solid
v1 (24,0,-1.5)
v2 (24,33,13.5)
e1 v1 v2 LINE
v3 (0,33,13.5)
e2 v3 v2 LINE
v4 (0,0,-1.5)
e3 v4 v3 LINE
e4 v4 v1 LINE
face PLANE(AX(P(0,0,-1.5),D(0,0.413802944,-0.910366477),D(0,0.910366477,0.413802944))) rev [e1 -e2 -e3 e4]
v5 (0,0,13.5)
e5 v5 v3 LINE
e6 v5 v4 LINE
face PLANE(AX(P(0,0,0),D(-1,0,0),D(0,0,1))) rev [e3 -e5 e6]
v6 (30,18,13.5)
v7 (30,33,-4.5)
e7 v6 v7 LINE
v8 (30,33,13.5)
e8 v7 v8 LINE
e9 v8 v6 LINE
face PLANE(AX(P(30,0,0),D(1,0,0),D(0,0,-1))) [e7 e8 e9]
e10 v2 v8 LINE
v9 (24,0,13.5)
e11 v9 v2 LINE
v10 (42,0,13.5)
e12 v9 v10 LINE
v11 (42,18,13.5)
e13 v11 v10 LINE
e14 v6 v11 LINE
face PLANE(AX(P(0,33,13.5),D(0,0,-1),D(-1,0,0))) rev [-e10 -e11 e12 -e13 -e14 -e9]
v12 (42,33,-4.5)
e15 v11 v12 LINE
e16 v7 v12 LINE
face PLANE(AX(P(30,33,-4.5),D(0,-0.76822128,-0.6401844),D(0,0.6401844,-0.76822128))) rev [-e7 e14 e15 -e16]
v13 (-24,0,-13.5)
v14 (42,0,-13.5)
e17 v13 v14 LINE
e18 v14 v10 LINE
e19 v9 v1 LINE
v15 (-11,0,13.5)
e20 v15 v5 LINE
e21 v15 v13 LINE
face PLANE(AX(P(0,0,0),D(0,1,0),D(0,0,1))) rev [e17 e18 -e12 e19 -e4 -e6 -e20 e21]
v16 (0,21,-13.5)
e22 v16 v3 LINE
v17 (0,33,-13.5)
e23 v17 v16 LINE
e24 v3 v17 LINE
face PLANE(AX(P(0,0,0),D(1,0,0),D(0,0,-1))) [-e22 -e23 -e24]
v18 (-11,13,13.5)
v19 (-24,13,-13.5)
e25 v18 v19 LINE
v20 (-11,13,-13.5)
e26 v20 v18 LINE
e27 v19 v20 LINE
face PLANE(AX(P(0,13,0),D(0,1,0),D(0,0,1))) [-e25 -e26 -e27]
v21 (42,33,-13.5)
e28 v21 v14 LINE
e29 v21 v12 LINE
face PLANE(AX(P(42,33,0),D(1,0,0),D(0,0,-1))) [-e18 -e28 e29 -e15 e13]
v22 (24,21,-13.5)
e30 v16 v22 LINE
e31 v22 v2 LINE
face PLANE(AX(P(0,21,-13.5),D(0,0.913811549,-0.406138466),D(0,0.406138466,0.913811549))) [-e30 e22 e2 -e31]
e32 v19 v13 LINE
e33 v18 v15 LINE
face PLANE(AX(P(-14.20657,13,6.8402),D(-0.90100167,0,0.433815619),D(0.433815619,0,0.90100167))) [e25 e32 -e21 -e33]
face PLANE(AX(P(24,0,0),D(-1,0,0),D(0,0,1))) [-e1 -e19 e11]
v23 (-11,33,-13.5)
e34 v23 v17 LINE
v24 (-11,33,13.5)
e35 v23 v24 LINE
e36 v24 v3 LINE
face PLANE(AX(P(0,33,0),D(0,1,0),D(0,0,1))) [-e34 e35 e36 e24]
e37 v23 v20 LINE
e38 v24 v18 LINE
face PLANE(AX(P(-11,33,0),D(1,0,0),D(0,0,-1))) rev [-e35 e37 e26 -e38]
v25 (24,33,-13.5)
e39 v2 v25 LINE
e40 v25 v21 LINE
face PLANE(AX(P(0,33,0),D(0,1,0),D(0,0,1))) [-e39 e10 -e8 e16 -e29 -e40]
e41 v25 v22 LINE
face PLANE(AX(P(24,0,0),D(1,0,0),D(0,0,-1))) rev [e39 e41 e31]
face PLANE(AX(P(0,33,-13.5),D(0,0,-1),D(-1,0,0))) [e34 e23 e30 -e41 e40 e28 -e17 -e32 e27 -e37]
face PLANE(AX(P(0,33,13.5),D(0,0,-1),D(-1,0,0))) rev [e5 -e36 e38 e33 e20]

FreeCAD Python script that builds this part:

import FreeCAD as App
import Part
import Sketcher
Q = App.Units.Quantity

doc = App.newDocument("Part")
body = doc.addObject("PartDesign::Body", "Body")

# Sketch on XZ plane
sketch1 = body.newObject("Sketcher::SketchObject", "Sketch")
sketch1.AttachmentSupport = (doc.getObject("XZ_Plane"), [""])
sketch1.MapMode = "FlatFace"
sketch1.addGeometry(Part.LineSegment(App.Vector(-11, -14, 0), App.Vector(-11, 14, 0)), False)
sketch1.addGeometry(Part.LineSegment(App.Vector(-11, 14, 0), App.Vector(0, 14, 0)), False)
sketch1.addGeometry(Part.LineSegment(App.Vector(0, 14, 0), App.Vector(0, -14, 0)), False)
sketch1.addGeometry(Part.LineSegment(App.Vector(0, -14, 0), App.Vector(-11, -14, 0)), False)
sketch1.addConstraint(Sketcher.Constraint("Coincident", 0, 2, 1, 1))
sketch1.addConstraint(Sketcher.Constraint("Coincident", 1, 2, 2, 1))
sketch1.addConstraint(Sketcher.Constraint("Coincident", 2, 2, 3, 1))
sketch1.addConstraint(Sketcher.Constraint("Coincident", 3, 2, 0, 1))
sketch1.addConstraint(Sketcher.Constraint("Vertical", 0))
sketch1.addConstraint(Sketcher.Constraint("Horizontal", 1))
sketch1.addConstraint(Sketcher.Constraint("Vertical", 2))
sketch1.addConstraint(Sketcher.Constraint("Horizontal", 3))
sketch1.addConstraint(Sketcher.Constraint("Symmetric", 1, 2, 2, 2, -1, 1))
sketch1.addConstraint(Sketcher.Constraint("DistanceX", 1, 1, 1, 2, Q("11 mm")))
sketch1.addConstraint(Sketcher.Constraint("DistanceY", 0, 1, 0, 2, Q("27 mm")))
pad1 = body.newObject("PartDesign::Pad", "Pad")
pad1.Profile = sketch1
pad1.Length = 33
pad1.Reversed = True

# Sketch on XZ plane
sketch2 = body.newObject("Sketcher::SketchObject", "Sketch001")
sketch2.AttachmentSupport = (doc.getObject("XZ_Plane"), [""])
sketch2.MapMode = "FlatFace"
sketch2.addGeometry(Part.LineSegment(App.Vector(-11, -14, 0), App.Vector(-24, -14, 0)), False)
sketch2.addGeometry(Part.LineSegment(App.Vector(-24, -14, 0), App.Vector(-11, 14, 0)), False)
sketch2.addGeometry(Part.LineSegment(App.Vector(-11, 14, 0), App.Vector(-11, -14, 0)), False)
sketch2.addConstraint(Sketcher.Constraint("Coincident", 0, 2, 1, 1))
sketch2.addConstraint(Sketcher.Constraint("Coincident", 1, 2, 2, 1))
sketch2.addConstraint(Sketcher.Constraint("Coincident", 2, 2, 0, 1))
sketch2.addConstraint(Sketcher.Constraint("Horizontal", 0))
sketch2.addConstraint(Sketcher.Constraint("Vertical", 2))
sketch2.addConstraint(Sketcher.Constraint("DistanceX", 0, 2, 0, 1, Q("13 mm")))
sketch2.addConstraint(Sketcher.Constraint("DistanceY", 2, 2, 2, 1, Q("27 mm")))
sketch2.addConstraint(Sketcher.Constraint("DistanceX", 0, 2, -1, 1, Q("24 mm")))
sketch2.addConstraint(Sketcher.Constraint("DistanceY", 0, 2, -1, 1, Q("13.5 mm")))
pad2 = body.newObject("PartDesign::Pad", "Pad001")
pad2.Profile = sketch2
pad2.Length = 13
pad2.Reversed = True
body2 = doc.addObject("PartDesign::Body", "Body001")

# Sketch on XZ plane
sketch3 = body2.newObject("Sketcher::SketchObject", "Sketch002")
sketch3.AttachmentSupport = (doc.getObject("XZ_Plane001"), [""])
sketch3.MapMode = "FlatFace"
sketch3.addGeometry(Part.LineSegment(App.Vector(24, -14, 0), App.Vector(24, 14, 0)), False)
sketch3.addGeometry(Part.LineSegment(App.Vector(24, 14, 0), App.Vector(42, 14, 0)), False)
sketch3.addGeometry(Part.LineSegment(App.Vector(42, 14, 0), App.Vector(42, -14, 0)), False)
sketch3.addGeometry(Part.LineSegment(App.Vector(42, -14, 0), App.Vector(24, -14, 0)), False)
sketch3.addConstraint(Sketcher.Constraint("Coincident", 0, 2, 1, 1))
sketch3.addConstraint(Sketcher.Constraint("Coincident", 1, 2, 2, 1))
sketch3.addConstraint(Sketcher.Constraint("Coincident", 2, 2, 3, 1))
sketch3.addConstraint(Sketcher.Constraint("Coincident", 3, 2, 0, 1))
sketch3.addConstraint(Sketcher.Constraint("Vertical", 0))
sketch3.addConstraint(Sketcher.Constraint("Horizontal", 1))
sketch3.addConstraint(Sketcher.Constraint("Vertical", 2))
sketch3.addConstraint(Sketcher.Constraint("Horizontal", 3))
sketch3.addConstraint(Sketcher.Constraint("DistanceX", 1, 1, 1, 2, Q("18 mm")))
sketch3.addConstraint(Sketcher.Constraint("DistanceY", 0, 1, 0, 2, Q("27 mm")))
sketch3.addConstraint(Sketcher.Constraint("DistanceX", -1, 1, 0, 2, Q("24 mm")))
sketch3.addConstraint(Sketcher.Constraint("DistanceY", -1, 1, 0, 2, Q("13.5 mm")))
pad3 = body2.newObject("PartDesign::Pad", "Pad002")
pad3.Profile = sketch3
pad3.Length = 33
pad3.Reversed = True
body.AllowCompound = True
doc.recompute()

boolean = body.newObject("PartDesign::Boolean", "Boolean")
boolean.Type = "Fuse"
boolean.addObjects([body2])

# Sketch on XZ plane
sketch4 = body.newObject("Sketcher::SketchObject", "Sketch003")
sketch4.AttachmentSupport = (doc.getObject("XZ_Plane"), [""])
sketch4.MapMode = "FlatFace"
sketch4.addGeometry(Part.LineSegment(App.Vector(0, -14, 0), App.Vector(0, 14, 0)), False)
sketch4.addGeometry(Part.LineSegment(App.Vector(0, 14, 0), App.Vector(24, 14, 0)), False)
sketch4.addGeometry(Part.LineSegment(App.Vector(24, 14, 0), App.Vector(24, -14, 0)), False)
sketch4.addGeometry(Part.LineSegment(App.Vector(24, -14, 0), App.Vector(0, -14, 0)), False)
sketch4.addConstraint(Sketcher.Constraint("Coincident", 0, 2, 1, 1))
sketch4.addConstraint(Sketcher.Constraint("Coincident", 1, 2, 2, 1))
sketch4.addConstraint(Sketcher.Constraint("Coincident", 2, 2, 3, 1))
sketch4.addConstraint(Sketcher.Constraint("Coincident", 3, 2, 0, 1))
sketch4.addConstraint(Sketcher.Constraint("Vertical", 0))
sketch4.addConstraint(Sketcher.Constraint("Horizontal", 1))
sketch4.addConstraint(Sketcher.Constraint("Vertical", 2))
sketch4.addConstraint(Sketcher.Constraint("Horizontal", 3))
sketch4.addConstraint(Sketcher.Constraint("Symmetric", 0, 2, 3, 2, -1, 1))
sketch4.addConstraint(Sketcher.Constraint("DistanceX", 1, 1, 1, 2, Q("24 mm")))
sketch4.addConstraint(Sketcher.Constraint("DistanceY", 0, 1, 0, 2, Q("27 mm")))
pad4 = body.newObject("PartDesign::Pad", "Pad003")
pad4.Profile = sketch4
pad4.Length = 33
pad4.Reversed = True

# Sketch on YZ plane
sketch5 = body.newObject("Sketcher::SketchObject", "Sketch004")
sketch5.AttachmentSupport = (doc.getObject("YZ_Plane"), [""])
sketch5.MapMode = "FlatFace"
sketch5.AttachmentOffset = App.Placement(App.Vector(0, 0, 24), App.Rotation())
sketch5.addGeometry(Part.LineSegment(App.Vector(33, 14, 0), App.Vector(33, -14, 0)), False)
sketch5.addGeometry(Part.LineSegment(App.Vector(33, -14, 0), App.Vector(21, -14, 0)), False)
sketch5.addGeometry(Part.LineSegment(App.Vector(21, -14, 0), App.Vector(33, 14, 0)), False)
sketch5.addGeometry(Part.LineSegment(App.Vector(0, 14, 0), App.Vector(33, 14, 0)), False)
sketch5.addGeometry(Part.LineSegment(App.Vector(33, 14, 0), App.Vector(0, -2, 0)), False)
sketch5.addGeometry(Part.LineSegment(App.Vector(0, -2, 0), App.Vector(0, 14, 0)), False)
sketch5.addConstraint(Sketcher.Constraint("Coincident", 0, 2, 1, 1))
sketch5.addConstraint(Sketcher.Constraint("Coincident", 1, 2, 2, 1))
sketch5.addConstraint(Sketcher.Constraint("Coincident", 2, 2, 0, 1))
sketch5.addConstraint(Sketcher.Constraint("Coincident", 3, 2, 4, 1))
sketch5.addConstraint(Sketcher.Constraint("Coincident", 4, 2, 5, 1))
sketch5.addConstraint(Sketcher.Constraint("Coincident", 5, 2, 3, 1))
sketch5.addConstraint(Sketcher.Constraint("Vertical", 0))
sketch5.addConstraint(Sketcher.Constraint("Horizontal", 1))
sketch5.addConstraint(Sketcher.Constraint("Horizontal", 3))
sketch5.addConstraint(Sketcher.Constraint("Vertical", 5))
sketch5.addConstraint(Sketcher.Constraint("Coincident", 3, 2, 2, 2))
sketch5.addConstraint(Sketcher.Constraint("PointOnObject", 4, 2, -2))
sketch5.addConstraint(Sketcher.Constraint("DistanceX", 1, 2, 1, 1, Q("12 mm")))
sketch5.addConstraint(Sketcher.Constraint("DistanceX", 3, 1, 3, 2, Q("33 mm")))
sketch5.addConstraint(Sketcher.Constraint("DistanceY", 0, 2, 0, 1, Q("27 mm")))
sketch5.addConstraint(Sketcher.Constraint("DistanceY", 5, 1, 5, 2, Q("15 mm")))
sketch5.addConstraint(Sketcher.Constraint("DistanceY", 0, 2, -1, 1, Q("13.5 mm")))
pocket1 = body.newObject("PartDesign::Pocket", "Pocket")
pocket1.Profile = sketch5
pocket1.Length = 24

# Sketch on YZ plane
sketch6 = body.newObject("Sketcher::SketchObject", "Sketch005")
sketch6.AttachmentSupport = (doc.getObject("YZ_Plane"), [""])
sketch6.MapMode = "FlatFace"
sketch6.AttachmentOffset = App.Placement(App.Vector(0, 0, 42), App.Rotation())
sketch6.addGeometry(Part.LineSegment(App.Vector(18, 14, 0), App.Vector(33, -4, 0)), False)
sketch6.addGeometry(Part.LineSegment(App.Vector(33, -4, 0), App.Vector(33, 14, 0)), False)
sketch6.addGeometry(Part.LineSegment(App.Vector(33, 14, 0), App.Vector(18, 14, 0)), False)
sketch6.addConstraint(Sketcher.Constraint("Coincident", 0, 2, 1, 1))
sketch6.addConstraint(Sketcher.Constraint("Coincident", 1, 2, 2, 1))
sketch6.addConstraint(Sketcher.Constraint("Coincident", 2, 2, 0, 1))
sketch6.addConstraint(Sketcher.Constraint("Vertical", 1))
sketch6.addConstraint(Sketcher.Constraint("Horizontal", 2))
sketch6.addConstraint(Sketcher.Constraint("DistanceX", 2, 2, 2, 1, Q("15 mm")))
sketch6.addConstraint(Sketcher.Constraint("DistanceY", 1, 1, 1, 2, Q("18 mm")))
sketch6.addConstraint(Sketcher.Constraint("DistanceX", -1, 1, 0, 2, Q("33 mm")))
sketch6.addConstraint(Sketcher.Constraint("DistanceY", 0, 2, -1, 1, Q("4.5 mm")))
pocket2 = body.newObject("PartDesign::Pocket", "Pocket001")
pocket2.Profile = sketch6
pocket2.Length = 12

doc.recompute()
